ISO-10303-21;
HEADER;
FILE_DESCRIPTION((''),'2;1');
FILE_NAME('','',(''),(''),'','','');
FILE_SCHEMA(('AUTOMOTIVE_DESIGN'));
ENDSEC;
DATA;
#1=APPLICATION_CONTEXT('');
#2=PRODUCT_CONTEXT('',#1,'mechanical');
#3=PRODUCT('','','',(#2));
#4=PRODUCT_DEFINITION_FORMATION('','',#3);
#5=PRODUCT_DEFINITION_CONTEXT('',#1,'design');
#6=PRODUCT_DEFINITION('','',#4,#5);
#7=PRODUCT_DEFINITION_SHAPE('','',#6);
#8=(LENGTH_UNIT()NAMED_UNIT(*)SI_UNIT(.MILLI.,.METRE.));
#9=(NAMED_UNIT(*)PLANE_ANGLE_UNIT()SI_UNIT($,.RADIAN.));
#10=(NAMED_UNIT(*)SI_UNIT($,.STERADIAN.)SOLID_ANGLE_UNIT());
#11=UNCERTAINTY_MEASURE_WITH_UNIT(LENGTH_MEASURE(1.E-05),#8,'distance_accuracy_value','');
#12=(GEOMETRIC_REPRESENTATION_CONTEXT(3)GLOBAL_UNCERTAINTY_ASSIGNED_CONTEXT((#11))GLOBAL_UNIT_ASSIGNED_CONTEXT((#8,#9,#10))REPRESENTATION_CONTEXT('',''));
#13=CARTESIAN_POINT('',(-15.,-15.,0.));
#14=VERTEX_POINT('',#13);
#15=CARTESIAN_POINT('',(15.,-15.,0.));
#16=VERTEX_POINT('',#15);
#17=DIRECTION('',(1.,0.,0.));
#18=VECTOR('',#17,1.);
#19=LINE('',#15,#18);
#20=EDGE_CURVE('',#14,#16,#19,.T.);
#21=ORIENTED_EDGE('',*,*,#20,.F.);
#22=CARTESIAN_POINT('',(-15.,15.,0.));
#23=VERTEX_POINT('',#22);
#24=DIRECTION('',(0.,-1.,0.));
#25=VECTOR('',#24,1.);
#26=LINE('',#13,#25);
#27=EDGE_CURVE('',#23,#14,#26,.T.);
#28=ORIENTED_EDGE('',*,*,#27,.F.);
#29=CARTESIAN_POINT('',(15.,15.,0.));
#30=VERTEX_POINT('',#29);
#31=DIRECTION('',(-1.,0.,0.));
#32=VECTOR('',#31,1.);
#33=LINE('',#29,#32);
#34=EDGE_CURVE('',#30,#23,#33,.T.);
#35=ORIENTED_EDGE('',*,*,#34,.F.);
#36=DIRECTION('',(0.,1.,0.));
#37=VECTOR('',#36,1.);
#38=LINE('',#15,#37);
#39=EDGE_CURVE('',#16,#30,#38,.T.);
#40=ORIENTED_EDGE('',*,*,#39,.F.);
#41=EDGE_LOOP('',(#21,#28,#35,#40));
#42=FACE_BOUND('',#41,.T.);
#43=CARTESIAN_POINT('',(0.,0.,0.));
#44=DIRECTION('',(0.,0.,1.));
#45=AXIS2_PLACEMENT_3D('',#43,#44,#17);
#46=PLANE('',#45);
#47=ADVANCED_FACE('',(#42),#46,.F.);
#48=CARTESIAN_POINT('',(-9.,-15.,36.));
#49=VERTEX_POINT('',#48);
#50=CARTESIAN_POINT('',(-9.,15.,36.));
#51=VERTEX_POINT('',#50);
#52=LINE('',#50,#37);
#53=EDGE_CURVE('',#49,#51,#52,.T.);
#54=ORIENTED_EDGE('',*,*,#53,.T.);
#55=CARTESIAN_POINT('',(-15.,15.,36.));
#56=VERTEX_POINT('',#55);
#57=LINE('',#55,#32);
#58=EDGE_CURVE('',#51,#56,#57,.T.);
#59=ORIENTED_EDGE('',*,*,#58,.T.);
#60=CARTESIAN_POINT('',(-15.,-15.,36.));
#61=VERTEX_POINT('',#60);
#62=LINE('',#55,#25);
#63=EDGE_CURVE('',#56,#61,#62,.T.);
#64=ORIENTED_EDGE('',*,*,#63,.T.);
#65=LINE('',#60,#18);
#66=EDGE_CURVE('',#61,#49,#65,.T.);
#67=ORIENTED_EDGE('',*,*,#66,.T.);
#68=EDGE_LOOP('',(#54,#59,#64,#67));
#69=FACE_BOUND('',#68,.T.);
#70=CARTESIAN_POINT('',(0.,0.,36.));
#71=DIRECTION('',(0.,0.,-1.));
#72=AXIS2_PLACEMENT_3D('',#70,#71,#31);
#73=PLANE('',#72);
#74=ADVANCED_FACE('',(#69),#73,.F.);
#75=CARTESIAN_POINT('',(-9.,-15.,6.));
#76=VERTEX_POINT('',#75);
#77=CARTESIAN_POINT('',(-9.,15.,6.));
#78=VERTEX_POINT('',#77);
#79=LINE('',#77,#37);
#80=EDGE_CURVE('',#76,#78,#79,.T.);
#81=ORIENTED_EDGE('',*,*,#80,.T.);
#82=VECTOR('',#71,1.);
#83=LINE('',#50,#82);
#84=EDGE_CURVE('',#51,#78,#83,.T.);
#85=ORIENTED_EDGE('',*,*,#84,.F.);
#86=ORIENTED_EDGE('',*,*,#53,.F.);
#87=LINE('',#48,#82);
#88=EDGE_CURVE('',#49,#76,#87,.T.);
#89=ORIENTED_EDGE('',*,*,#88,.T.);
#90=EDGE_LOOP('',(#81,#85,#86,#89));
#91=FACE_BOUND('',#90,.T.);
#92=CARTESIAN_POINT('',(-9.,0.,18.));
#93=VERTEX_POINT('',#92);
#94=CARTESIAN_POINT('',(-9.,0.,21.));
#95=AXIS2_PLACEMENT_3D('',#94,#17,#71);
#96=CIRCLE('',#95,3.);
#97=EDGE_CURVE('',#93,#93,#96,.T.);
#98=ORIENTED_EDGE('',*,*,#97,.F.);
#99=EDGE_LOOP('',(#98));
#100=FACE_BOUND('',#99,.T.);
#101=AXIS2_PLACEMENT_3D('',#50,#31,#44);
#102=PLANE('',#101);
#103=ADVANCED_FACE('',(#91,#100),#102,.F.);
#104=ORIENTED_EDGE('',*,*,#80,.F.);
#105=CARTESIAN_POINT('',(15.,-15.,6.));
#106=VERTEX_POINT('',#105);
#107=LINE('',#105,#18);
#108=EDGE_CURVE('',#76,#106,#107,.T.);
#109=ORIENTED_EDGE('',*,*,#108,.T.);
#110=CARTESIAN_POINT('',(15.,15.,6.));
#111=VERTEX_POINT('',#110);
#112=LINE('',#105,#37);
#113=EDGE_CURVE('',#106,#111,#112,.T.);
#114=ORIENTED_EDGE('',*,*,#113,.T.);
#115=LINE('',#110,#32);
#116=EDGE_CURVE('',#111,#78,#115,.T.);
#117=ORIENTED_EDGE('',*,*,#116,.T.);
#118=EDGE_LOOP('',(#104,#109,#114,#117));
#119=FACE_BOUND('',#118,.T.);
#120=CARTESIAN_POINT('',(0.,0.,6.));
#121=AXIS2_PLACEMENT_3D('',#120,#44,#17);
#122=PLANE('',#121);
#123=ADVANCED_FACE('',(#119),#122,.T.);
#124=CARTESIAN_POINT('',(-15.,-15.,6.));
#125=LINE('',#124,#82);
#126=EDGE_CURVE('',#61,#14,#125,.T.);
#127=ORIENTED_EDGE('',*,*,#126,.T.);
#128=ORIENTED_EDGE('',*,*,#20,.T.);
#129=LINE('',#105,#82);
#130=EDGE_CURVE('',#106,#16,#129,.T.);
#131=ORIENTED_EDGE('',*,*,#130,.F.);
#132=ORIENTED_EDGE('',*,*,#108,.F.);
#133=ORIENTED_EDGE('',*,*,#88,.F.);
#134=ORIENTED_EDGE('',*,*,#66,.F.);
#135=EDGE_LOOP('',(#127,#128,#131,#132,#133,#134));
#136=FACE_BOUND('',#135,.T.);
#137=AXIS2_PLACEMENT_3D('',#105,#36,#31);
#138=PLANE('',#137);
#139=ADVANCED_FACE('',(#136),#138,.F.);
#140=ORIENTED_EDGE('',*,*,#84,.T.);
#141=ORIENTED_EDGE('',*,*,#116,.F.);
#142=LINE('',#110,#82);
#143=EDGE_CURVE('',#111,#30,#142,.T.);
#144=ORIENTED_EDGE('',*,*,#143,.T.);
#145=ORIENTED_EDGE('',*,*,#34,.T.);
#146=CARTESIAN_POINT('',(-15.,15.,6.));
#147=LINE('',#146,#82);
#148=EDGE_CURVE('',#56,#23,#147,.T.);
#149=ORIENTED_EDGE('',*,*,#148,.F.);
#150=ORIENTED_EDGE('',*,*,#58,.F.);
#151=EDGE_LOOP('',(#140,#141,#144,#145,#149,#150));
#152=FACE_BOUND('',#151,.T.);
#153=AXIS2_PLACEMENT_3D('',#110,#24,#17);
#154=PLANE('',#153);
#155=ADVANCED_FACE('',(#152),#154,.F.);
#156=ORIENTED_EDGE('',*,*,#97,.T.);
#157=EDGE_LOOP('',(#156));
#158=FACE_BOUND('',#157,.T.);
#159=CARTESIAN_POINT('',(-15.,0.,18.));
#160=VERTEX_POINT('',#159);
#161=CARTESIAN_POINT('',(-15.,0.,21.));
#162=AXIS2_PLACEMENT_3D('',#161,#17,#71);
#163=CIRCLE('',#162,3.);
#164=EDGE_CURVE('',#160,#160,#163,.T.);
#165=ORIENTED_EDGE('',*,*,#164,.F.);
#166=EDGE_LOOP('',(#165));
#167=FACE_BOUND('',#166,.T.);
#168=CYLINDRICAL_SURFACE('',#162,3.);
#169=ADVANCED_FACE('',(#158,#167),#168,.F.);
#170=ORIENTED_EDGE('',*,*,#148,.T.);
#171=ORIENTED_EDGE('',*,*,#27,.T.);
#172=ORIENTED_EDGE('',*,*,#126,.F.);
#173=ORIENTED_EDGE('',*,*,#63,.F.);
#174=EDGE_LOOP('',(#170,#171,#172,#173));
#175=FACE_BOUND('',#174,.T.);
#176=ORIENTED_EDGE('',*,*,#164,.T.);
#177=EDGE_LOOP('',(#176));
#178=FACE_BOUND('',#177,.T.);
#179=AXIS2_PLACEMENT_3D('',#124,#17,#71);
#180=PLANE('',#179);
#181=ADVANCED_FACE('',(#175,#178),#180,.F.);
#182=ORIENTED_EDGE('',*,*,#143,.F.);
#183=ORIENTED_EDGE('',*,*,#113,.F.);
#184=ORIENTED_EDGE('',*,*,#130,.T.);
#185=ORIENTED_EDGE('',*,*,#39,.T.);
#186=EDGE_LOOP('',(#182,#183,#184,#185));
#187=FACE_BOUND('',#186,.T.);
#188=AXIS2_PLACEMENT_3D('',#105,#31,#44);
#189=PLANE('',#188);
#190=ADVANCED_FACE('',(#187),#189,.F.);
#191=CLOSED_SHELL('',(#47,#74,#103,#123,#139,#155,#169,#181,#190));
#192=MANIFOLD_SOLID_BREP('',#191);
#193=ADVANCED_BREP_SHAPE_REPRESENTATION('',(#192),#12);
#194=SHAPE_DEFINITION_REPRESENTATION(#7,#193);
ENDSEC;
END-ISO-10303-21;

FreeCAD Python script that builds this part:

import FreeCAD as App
import Part
import Sketcher
from FreeCAD import Vector
Q = App.Units.Quantity


def add_polygon(sketch, points):
    """Adds a closed chain of lines whose ends are joined by coincident constraints."""
    first, n = sketch.GeometryCount, len(points)
    for a, b in zip(points, points[1:] + points[:1]):
        sketch.addGeometry(Part.LineSegment(App.Vector(*a, 0), App.Vector(*b, 0)), False)
    for i in range(n):
        sketch.addConstraint(Sketcher.Constraint("Coincident", first + i, 2, first + (i + 1) % n, 1))

doc = App.newDocument("Part")
params = doc.addObject("Spreadsheet::Sheet", "Params")
for row, (alias, value) in enumerate([
    ("sketch1_width", "30 mm"),
    ("pad1_length", "6 mm"),
    ("sketch2_width", "6 mm"),
    ("sketch2_height", "30 mm"),
    ("pad2_length", "30 mm"),
    ("sketch3_diameter", "6 mm"),
], start=1):
    params.set(f"A{row}", alias)
    params.set(f"B{row}", "=" + value)
    params.setAlias(f"B{row}", alias)

body = doc.addObject("PartDesign::Body", "Body")

# Sketch on XY plane
sketch1 = body.newObject("Sketcher::SketchObject", "Sketch")
sketch1.AttachmentSupport = (doc.getObject("XY_Plane"), [""])
sketch1.MapMode = "FlatFace"
add_polygon(sketch1, [(-15, 15), (-15, -15), (15, -15), (15, 15)])  # lines 0-3
sketch1.addConstraint([
    Sketcher.Constraint("Vertical", 0),
    Sketcher.Constraint("Horizontal", 1),
    Sketcher.Constraint("Vertical", 2),
    Sketcher.Constraint("Horizontal", 3),
    Sketcher.Constraint("Symmetric", 0, 2, 2, 2, -1, 1),
    Sketcher.Constraint("Equal", 3, 0),
    Sketcher.Constraint("DistanceX", 1, 1, 1, 2, Q("30 mm")),
])
sketch1.setExpression("Constraints[10]", "Params.sketch1_width")
pad1 = body.newObject("PartDesign::Pad", "Pad")
pad1.Profile = sketch1
pad1.setExpression("Length", "Params.pad1_length")

# Sketch on XY plane
sketch2 = body.newObject("Sketcher::SketchObject", "Sketch001")
sketch2.AttachmentSupport = (doc.getObject("XY_Plane"), [""])
sketch2.MapMode = "FlatFace"
sketch2.AttachmentOffset = App.Placement(Vector(0, 0, 6), App.Rotation())
add_polygon(sketch2, [(-15, 15), (-15, -15), (-9, -15), (-9, 15)])  # lines 0-3
sketch2.addConstraint([
    Sketcher.Constraint("Vertical", 0),
    Sketcher.Constraint("Horizontal", 1),
    Sketcher.Constraint("Vertical", 2),
    Sketcher.Constraint("Horizontal", 3),
    Sketcher.Constraint("DistanceX", 1, 1, 1, 2, Q("6 mm")),
    Sketcher.Constraint("DistanceY", 0, 2, 0, 1, Q("30 mm")),
    Sketcher.Constraint("DistanceX", 0, 2, -1, 1, Q("15 mm")),
    Sketcher.Constraint("DistanceY", 0, 2, -1, 1, Q("15 mm")),
])
sketch2.setExpression("Constraints[8]", "Params.sketch2_width")
sketch2.setExpression("Constraints[9]", "Params.sketch2_height")
pad2 = body.newObject("PartDesign::Pad", "Pad001")
pad2.Profile = sketch2
pad2.setExpression("Length", "Params.pad2_length")

# Sketch on YZ plane
sketch3 = body.newObject("Sketcher::SketchObject", "Sketch002")
sketch3.AttachmentSupport = (doc.getObject("YZ_Plane"), [""])
sketch3.MapMode = "FlatFace"
sketch3.AttachmentOffset = App.Placement(Vector(0, 0, -9), App.Rotation())
sketch3.addGeometry(Part.Circle(Vector(0, 21, 0), Vector(0, 0, 1), 3), False)
sketch3.addConstraint([
    Sketcher.Constraint("PointOnObject", 0, 3, -2),
    Sketcher.Constraint("Diameter", 0, Q("6 mm")),
    Sketcher.Constraint("DistanceY", -1, 1, 0, 3, Q("21 mm")),
])
sketch3.setExpression("Constraints[1]", "Params.sketch3_diameter")
pocket1 = body.newObject("PartDesign::Pocket", "Pocket")
pocket1.Profile = sketch3
pocket1.Type = "ThroughAll"

doc.recompute()
